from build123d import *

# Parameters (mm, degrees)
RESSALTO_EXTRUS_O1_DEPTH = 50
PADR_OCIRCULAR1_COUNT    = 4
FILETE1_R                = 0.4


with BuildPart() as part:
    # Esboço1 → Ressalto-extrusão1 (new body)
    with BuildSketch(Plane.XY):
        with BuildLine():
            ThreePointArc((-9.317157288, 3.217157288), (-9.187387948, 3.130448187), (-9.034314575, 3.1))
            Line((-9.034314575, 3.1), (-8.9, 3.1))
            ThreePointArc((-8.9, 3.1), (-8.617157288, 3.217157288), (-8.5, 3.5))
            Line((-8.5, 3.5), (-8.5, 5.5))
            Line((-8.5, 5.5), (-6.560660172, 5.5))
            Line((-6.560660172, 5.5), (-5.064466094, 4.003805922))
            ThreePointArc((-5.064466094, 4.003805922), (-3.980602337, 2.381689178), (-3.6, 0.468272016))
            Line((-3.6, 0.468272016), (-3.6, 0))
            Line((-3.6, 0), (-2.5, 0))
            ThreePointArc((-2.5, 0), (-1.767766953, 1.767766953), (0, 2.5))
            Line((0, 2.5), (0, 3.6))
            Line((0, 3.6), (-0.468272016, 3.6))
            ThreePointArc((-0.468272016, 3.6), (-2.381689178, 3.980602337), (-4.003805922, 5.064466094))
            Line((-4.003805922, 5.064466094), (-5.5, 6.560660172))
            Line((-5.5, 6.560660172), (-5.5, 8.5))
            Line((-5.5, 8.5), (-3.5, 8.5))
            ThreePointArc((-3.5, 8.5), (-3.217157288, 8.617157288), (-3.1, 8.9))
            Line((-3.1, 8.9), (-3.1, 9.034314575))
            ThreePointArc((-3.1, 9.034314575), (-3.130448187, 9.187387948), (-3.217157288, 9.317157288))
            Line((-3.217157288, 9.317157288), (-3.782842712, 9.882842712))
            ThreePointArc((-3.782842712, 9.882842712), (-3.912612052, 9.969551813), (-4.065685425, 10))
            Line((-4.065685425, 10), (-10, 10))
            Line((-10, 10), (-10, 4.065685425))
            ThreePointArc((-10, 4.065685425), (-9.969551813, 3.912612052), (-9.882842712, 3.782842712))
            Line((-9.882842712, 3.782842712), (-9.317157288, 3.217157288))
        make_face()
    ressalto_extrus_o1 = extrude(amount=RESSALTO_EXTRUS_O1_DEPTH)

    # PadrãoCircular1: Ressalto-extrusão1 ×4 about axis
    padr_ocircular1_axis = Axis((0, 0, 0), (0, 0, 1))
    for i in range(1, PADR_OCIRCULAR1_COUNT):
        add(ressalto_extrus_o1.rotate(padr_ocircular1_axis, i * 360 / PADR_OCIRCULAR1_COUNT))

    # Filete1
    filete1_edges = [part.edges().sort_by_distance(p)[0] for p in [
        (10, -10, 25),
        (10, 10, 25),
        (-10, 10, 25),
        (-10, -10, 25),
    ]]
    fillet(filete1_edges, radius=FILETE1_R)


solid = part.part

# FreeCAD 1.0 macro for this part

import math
import FreeCAD as App
import Part
import Sketcher

V = App.Vector
Q = App.Units.Quantity


def edges_at(feature, points):
    """Names of the edges that pass closest to the given points."""
    edges = feature.Shape.Edges
    near = lambda p: min(range(len(edges)), key=lambda i: edges[i].distToShape(Part.Vertex(*p))[0])
    return sorted({f"Edge{near(p) + 1}" for p in points})

doc = App.newDocument("Part")
body = doc.addObject("PartDesign::Body", "Body")

sketch1 = body.newObject("Sketcher::SketchObject", "Sketch")
sketch1.AttachmentSupport = (doc.getObject("XY_Plane"), [""])
sketch1.MapMode = "FlatFace"
sketch1.addGeometry(Part.ArcOfCircle(Part.Circle(V(-9.03, 3.5, 0), V(0, 0, 1), 0.4), math.radians(-135), math.radians(-90)), False)
sketch1.addGeometry(Part.LineSegment(V(-9.03, 3.1, 0), V(-8.9, 3.1, 0)), False)
sketch1.addGeometry(Part.ArcOfCircle(Part.Circle(V(-8.9, 3.5, 0), V(0, 0, 1), 0.4), math.radians(-90), math.radians(0)), False)
sketch1.addGeometry(Part.LineSegment(V(-8.5, 3.5, 0), V(-8.5, 5.5, 0)), False)
sketch1.addGeometry(Part.LineSegment(V(-8.5, 5.5, 0), V(-6.56, 5.5, 0)), False)
sketch1.addGeometry(Part.LineSegment(V(-6.56, 5.5, 0), V(-5.06, 4, 0)), False)
sketch1.addGeometry(Part.ArcOfCircle(Part.Circle(V(-8.6, 0.47, 0), V(0, 0, 1), 5), math.radians(0), math.radians(45)), False)
sketch1.addGeometry(Part.LineSegment(V(-3.6, 0.47, 0), V(-3.6, 0, 0)), False)
sketch1.addGeometry(Part.LineSegment(V(-3.6, 0, 0), V(-2.5, 0, 0)), False)
sketch1.addGeometry(Part.ArcOfCircle(Part.Circle(V(0, 0, 0), V(0, 0, 1), 2.5), math.radians(90), math.radians(180)), False)
sketch1.addGeometry(Part.LineSegment(V(0, 2.5, 0), V(0, 3.6, 0)), False)
sketch1.addGeometry(Part.LineSegment(V(0, 3.6, 0), V(-0.47, 3.6, 0)), False)
sketch1.addGeometry(Part.ArcOfCircle(Part.Circle(V(-0.47, 8.6, 0), V(0, 0, 1), 5), math.radians(-135), math.radians(-90)), False)
sketch1.addGeometry(Part.LineSegment(V(-4, 5.06, 0), V(-5.5, 6.56, 0)), False)
sketch1.addGeometry(Part.LineSegment(V(-5.5, 6.56, 0), V(-5.5, 8.5, 0)), False)
sketch1.addGeometry(Part.LineSegment(V(-5.5, 8.5, 0), V(-3.5, 8.5, 0)), False)
sketch1.addGeometry(Part.ArcOfCircle(Part.Circle(V(-3.5, 8.9, 0), V(0, 0, 1), 0.4), math.radians(-90), math.radians(0)), False)
sketch1.addGeometry(Part.LineSegment(V(-3.1, 8.9, 0), V(-3.1, 9.03, 0)), False)
sketch1.addGeometry(Part.ArcOfCircle(Part.Circle(V(-3.5, 9.03, 0), V(0, 0, 1), 0.4), math.radians(0), math.radians(45)), False)
sketch1.addGeometry(Part.LineSegment(V(-3.22, 9.32, 0), V(-3.78, 9.88, 0)), False)
sketch1.addGeometry(Part.ArcOfCircle(Part.Circle(V(-4.07, 9.6, 0), V(0, 0, 1), 0.4), math.radians(45), math.radians(90)), False)
sketch1.addGeometry(Part.LineSegment(V(-4.07, 10, 0), V(-10, 10, 0)), False)
sketch1.addGeometry(Part.LineSegment(V(-10, 10, 0), V(-10, 4.07, 0)), False)
sketch1.addGeometry(Part.ArcOfCircle(Part.Circle(V(-9.6, 4.07, 0), V(0, 0, 1), 0.4), math.radians(180), math.radians(225)), False)
sketch1.addGeometry(Part.LineSegment(V(-9.88, 3.78, 0), V(-9.32, 3.22, 0)), False)
sketch1.addConstraint(Sketcher.Constraint("Tangent", 0, 2, 1, 1))
sketch1.addConstraint(Sketcher.Constraint("Tangent", 1, 2, 2, 1))
sketch1.addConstraint(Sketcher.Constraint("Tangent", 2, 2, 3, 1))
sketch1.addConstraint(Sketcher.Constraint("Coincident", 3, 2, 4, 1))
sketch1.addConstraint(Sketcher.Constraint("Coincident", 4, 2, 5, 1))
sketch1.addConstraint(Sketcher.Constraint("Tangent", 5, 2, 6, 2))
sketch1.addConstraint(Sketcher.Constraint("Tangent", 6, 1, 7, 1))
sketch1.addConstraint(Sketcher.Constraint("Coincident", 7, 2, 8, 1))
sketch1.addConstraint(Sketcher.Constraint("Coincident", 8, 2, 9, 2))
sketch1.addConstraint(Sketcher.Constraint("Coincident", 9, 1, 10, 1))
sketch1.addConstraint(Sketcher.Constraint("Coincident", 10, 2, 11, 1))
sketch1.addConstraint(Sketcher.Constraint("Tangent", 11, 2, 12, 2))
sketch1.addConstraint(Sketcher.Constraint("Tangent", 12, 1, 13, 1))
sketch1.addConstraint(Sketcher.Constraint("Coincident", 13, 2, 14, 1))
sketch1.addConstraint(Sketcher.Constraint("Coincident", 14, 2, 15, 1))
sketch1.addConstraint(Sketcher.Constraint("Tangent", 15, 2, 16, 1))
sketch1.addConstraint(Sketcher.Constraint("Tangent", 16, 2, 17, 1))
sketch1.addConstraint(Sketcher.Constraint("Tangent", 17, 2, 18, 1))
sketch1.addConstraint(Sketcher.Constraint("Tangent", 18, 2, 19, 1))
sketch1.addConstraint(Sketcher.Constraint("Tangent", 19, 2, 20, 1))
sketch1.addConstraint(Sketcher.Constraint("Tangent", 20, 2, 21, 1))
sketch1.addConstraint(Sketcher.Constraint("Coincident", 21, 2, 22, 1))
sketch1.addConstraint(Sketcher.Constraint("Tangent", 22, 2, 23, 1))
sketch1.addConstraint(Sketcher.Constraint("Tangent", 23, 2, 24, 1))
sketch1.addConstraint(Sketcher.Constraint("Tangent", 24, 2, 0, 1))
sketch1.addConstraint(Sketcher.Constraint("Horizontal", 1))
sketch1.addConstraint(Sketcher.Constraint("Vertical", 3))
sketch1.addConstraint(Sketcher.Constraint("Horizontal", 4))
sketch1.addConstraint(Sketcher.Constraint("Vertical", 7))
sketch1.addConstraint(Sketcher.Constraint("Horizontal", 8))
sketch1.addConstraint(Sketcher.Constraint("Vertical", 10))
sketch1.addConstraint(Sketcher.Constraint("Horizontal", 11))
sketch1.addConstraint(Sketcher.Constraint("Vertical", 14))
sketch1.addConstraint(Sketcher.Constraint("Horizontal", 15))
sketch1.addConstraint(Sketcher.Constraint("Vertical", 17))
sketch1.addConstraint(Sketcher.Constraint("Horizontal", 21))
sketch1.addConstraint(Sketcher.Constraint("Vertical", 22))
sketch1.addConstraint(Sketcher.Constraint("Coincident", 9, 3, -1, 1))
sketch1.addConstraint(Sketcher.Constraint("Equal", 0, 2))
sketch1.addConstraint(Sketcher.Constraint("Equal", 6, 12))
sketch1.addConstraint(Sketcher.Constraint("Equal", 2, 16))
sketch1.addConstraint(Sketcher.Constraint("Equal", 16, 18))
sketch1.addConstraint(Sketcher.Constraint("Equal", 18, 20))
sketch1.addConstraint(Sketcher.Constraint("Equal", 20, 23))
sketch1.addConstraint(Sketcher.Constraint("PointOnObject", 7, 2, -1))
sketch1.addConstraint(Sketcher.Constraint("PointOnObject", 9, 1, -2))
sketch1.addConstraint(Sketcher.Constraint("Parallel", 5, 13))
sketch1.addConstraint(Sketcher.Constraint("Parallel", 13, 19))
sketch1.addConstraint(Sketcher.Constraint("Parallel", 19, 24))
sketch1.addConstraint(Sketcher.Constraint("Equal", 15, 3))
sketch1.addConstraint(Sketcher.Constraint("Equal", 11, 7))
sketch1.addConstraint(Sketcher.Constraint("Equal", 8, 10))
sketch1.addConstraint(Sketcher.Constraint("Equal", 4, 14))
sketch1.addConstraint(Sketcher.Constraint("Equal", 1, 17))
sketch1.addConstraint(Sketcher.Constraint("Equal", 21, 22))
sketch1.addConstraint(Sketcher.Constraint("Equal", 5, 13))
sketch1.addConstraint(Sketcher.Constraint("Equal", 19, 24))
sketch1.addConstraint(Sketcher.Constraint("Radius", 6, Q("5 mm")))
sketch1.addConstraint(Sketcher.Constraint("Radius", 0, Q("0.4 mm")))
sketch1.addConstraint(Sketcher.Constraint("Radius", 9, Q("2.5 mm")))
sketch1.addConstraint(Sketcher.Constraint("DistanceX", 15, 1, 15, 2, Q("2 mm")))
sketch1.addConstraint(Sketcher.Constraint("DistanceX", 8, 1, 8, 2, Q("1.1 mm")))
sketch1.addConstraint(Sketcher.Constraint("DistanceY", -1, 1, 20, 2, Q("10 mm")))
sketch1.addConstraint(Sketcher.Constraint("DistanceY", 4, 2, 14, 2, Q("3 mm")))
sketch1.addConstraint(Sketcher.Constraint("Distance", 19, Q("0.8 mm")))
sketch1.addConstraint(Sketcher.Constraint("DistanceY", -1, 1, 0, 3, Q("3.5 mm")))
sketch1.addConstraint(Sketcher.Constraint("DistanceX", 4, 1, 4, 2, Q("1.93934 mm")))
pad1 = body.newObject("PartDesign::Pad", "Pad")
pad1.Profile = sketch1
pad1.Length = 50
doc.recompute()

polarpattern = body.newObject("PartDesign::PolarPattern", "PolarPattern")
polarpattern.Originals = [pad1]
polarpattern.Axis = (doc.getObject("Z_Axis"), [""])
polarpattern.Angle = 360
polarpattern.Occurrences = 4
body.Tip = polarpattern
doc.recompute()

fillet = body.newObject("PartDesign::Fillet", "Fillet")
fillet.Base = (polarpattern, edges_at(polarpattern, [
    (10, -10, 25),
    (10, 10, 25),
    (-10, 10, 25),
    (-10, -10, 25),
]))
fillet.Radius = 0.4

doc.recompute()
